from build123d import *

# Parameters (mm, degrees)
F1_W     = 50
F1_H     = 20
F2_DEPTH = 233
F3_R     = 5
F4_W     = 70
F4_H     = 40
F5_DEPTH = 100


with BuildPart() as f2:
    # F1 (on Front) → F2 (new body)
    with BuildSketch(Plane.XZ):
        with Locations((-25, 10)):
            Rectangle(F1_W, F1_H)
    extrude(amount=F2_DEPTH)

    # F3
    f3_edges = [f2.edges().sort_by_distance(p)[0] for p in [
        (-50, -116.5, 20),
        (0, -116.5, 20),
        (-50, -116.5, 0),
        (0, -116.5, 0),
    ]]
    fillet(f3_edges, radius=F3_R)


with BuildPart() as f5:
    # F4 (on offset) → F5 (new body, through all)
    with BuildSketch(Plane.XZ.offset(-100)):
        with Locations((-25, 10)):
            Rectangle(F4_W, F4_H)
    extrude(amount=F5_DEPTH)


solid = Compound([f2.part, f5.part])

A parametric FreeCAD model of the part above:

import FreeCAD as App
import Part
import Sketcher
Q = App.Units.Quantity


def edges_at(feature, points):
    """Names of the edges that pass closest to the given points."""
    edges = feature.Shape.Edges
    near = lambda p: min(range(len(edges)), key=lambda i: edges[i].distToShape(Part.Vertex(*p))[0])
    return sorted({f"Edge{near(p) + 1}" for p in points})


def add_polygon(sketch, points):
    """Adds a closed chain of lines whose ends are joined by coincident constraints."""
    first, n = sketch.GeometryCount, len(points)
    for a, b in zip(points, points[1:] + points[:1]):
        sketch.addGeometry(Part.LineSegment(App.Vector(*a, 0), App.Vector(*b, 0)), False)
    for i in range(n):
        sketch.addConstraint(Sketcher.Constraint("Coincident", first + i, 2, first + (i + 1) % n, 1))

doc = App.newDocument("Part")
body = doc.addObject("PartDesign::Body", "Body")

sketch1 = body.newObject("Sketcher::SketchObject", "Sketch")
sketch1.AttachmentSupport = (doc.getObject("XZ_Plane"), [""])
sketch1.MapMode = "FlatFace"
add_polygon(sketch1, [(-50, 20), (-50, 0), (0, 0), (0, 20)])
sketch1.addConstraint([
    Sketcher.Constraint("Vertical", 0),
    Sketcher.Constraint("Horizontal", 1),
    Sketcher.Constraint("Vertical", 2),
    Sketcher.Constraint("Horizontal", 3),
    Sketcher.Constraint("Coincident", 1, 2, -1, 1),
    Sketcher.Constraint("DistanceX", 1, 1, 1, 2, Q("50 mm")),
    Sketcher.Constraint("DistanceY", 0, 2, 0, 1, Q("20 mm")),
])
pad1 = body.newObject("PartDesign::Pad", "Pad")
pad1.Profile = sketch1
pad1.Length = 233
doc.recompute()

fillet = body.newObject("PartDesign::Fillet", "Fillet")
fillet.Base = (pad1, edges_at(pad1, [
    (-50, -116.5, 20),
    (0, -116.5, 20),
    (-50, -116.5, 0),
    (0, -116.5, 0),
]))
fillet.Radius = 5
body2 = doc.addObject("PartDesign::Body", "Body001")

sketch2 = body2.newObject("Sketcher::SketchObject", "Sketch001")
sketch2.AttachmentSupport = (doc.getObject("XZ_Plane001"), [""])
sketch2.MapMode = "FlatFace"
sketch2.AttachmentOffset = App.Placement(App.Vector(0, 0, -100), App.Rotation())
add_polygon(sketch2, [(-60, 30), (-60, -10), (10, -10), (10, 30)])
sketch2.addConstraint([
    Sketcher.Constraint("Vertical", 0),
    Sketcher.Constraint("Horizontal", 1),
    Sketcher.Constraint("Vertical", 2),
    Sketcher.Constraint("Horizontal", 3),
    Sketcher.Constraint("DistanceX", 1, 1, 1, 2, Q("70 mm")),
    Sketcher.Constraint("DistanceY", 0, 2, 0, 1, Q("40 mm")),
    Sketcher.Constraint("DistanceX", 0, 2, -1, 1, Q("60 mm")),
    Sketcher.Constraint("DistanceY", 0, 2, -1, 1, Q("10 mm")),
])
pad2 = body2.newObject("PartDesign::Pad", "Pad001")
pad2.Profile = sketch2
pad2.Length = 100

doc.recompute()
